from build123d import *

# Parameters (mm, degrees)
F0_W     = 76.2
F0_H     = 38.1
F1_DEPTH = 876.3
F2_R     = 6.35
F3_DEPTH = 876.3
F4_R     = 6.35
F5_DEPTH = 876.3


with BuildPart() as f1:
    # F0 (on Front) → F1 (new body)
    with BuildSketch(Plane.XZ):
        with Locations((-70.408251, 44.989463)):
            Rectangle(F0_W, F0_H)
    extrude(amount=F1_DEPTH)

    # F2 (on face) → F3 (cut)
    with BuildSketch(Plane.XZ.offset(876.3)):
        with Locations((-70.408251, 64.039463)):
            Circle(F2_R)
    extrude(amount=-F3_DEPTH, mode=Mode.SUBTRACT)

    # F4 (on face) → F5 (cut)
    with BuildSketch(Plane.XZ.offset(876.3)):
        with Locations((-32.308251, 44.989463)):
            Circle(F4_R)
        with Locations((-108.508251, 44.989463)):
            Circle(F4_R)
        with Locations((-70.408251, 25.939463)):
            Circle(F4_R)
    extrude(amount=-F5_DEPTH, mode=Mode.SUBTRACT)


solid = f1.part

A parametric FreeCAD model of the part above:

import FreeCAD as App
import Part
import Sketcher

V = App.Vector
Q = App.Units.Quantity

doc = App.newDocument("Part")
body = doc.addObject("PartDesign::Body", "Body")

# Sketch on XZ plane
sketch1 = body.newObject("Sketcher::SketchObject", "Sketch")
sketch1.AttachmentSupport = (doc.getObject("XZ_Plane"), [""])
sketch1.MapMode = "FlatFace"
sketch1.addGeometry(Part.LineSegment(V(-109, 64, 0), V(-109, 26, 0)), False)
sketch1.addGeometry(Part.LineSegment(V(-109, 26, 0), V(-32, 26, 0)), False)
sketch1.addGeometry(Part.LineSegment(V(-32, 26, 0), V(-32, 64, 0)), False)
sketch1.addGeometry(Part.LineSegment(V(-32, 64, 0), V(-109, 64, 0)), False)
sketch1.addConstraint(Sketcher.Constraint("Coincident", 0, 2, 1, 1))
sketch1.addConstraint(Sketcher.Constraint("Coincident", 1, 2, 2, 1))
sketch1.addConstraint(Sketcher.Constraint("Coincident", 2, 2, 3, 1))
sketch1.addConstraint(Sketcher.Constraint("Coincident", 3, 2, 0, 1))
sketch1.addConstraint(Sketcher.Constraint("Vertical", 0))
sketch1.addConstraint(Sketcher.Constraint("Horizontal", 1))
sketch1.addConstraint(Sketcher.Constraint("Vertical", 2))
sketch1.addConstraint(Sketcher.Constraint("Horizontal", 3))
sketch1.addConstraint(Sketcher.Constraint("DistanceX", 1, 1, 1, 2, Q("3 in")))
sketch1.addConstraint(Sketcher.Constraint("DistanceY", 0, 2, 0, 1, Q("1.5 in")))
sketch1.addConstraint(Sketcher.Constraint("DistanceX", 0, 2, -1, 1, 108.508251))
sketch1.addConstraint(Sketcher.Constraint("DistanceY", -1, 1, 0, 2, 25.939463))
pad1 = body.newObject("PartDesign::Pad", "Pad")
pad1.Profile = sketch1
pad1.Length = Q("34.5 in")

# Sketch on XZ plane
sketch2 = body.newObject("Sketcher::SketchObject", "Sketch001")
sketch2.AttachmentSupport = (doc.getObject("XZ_Plane"), [""])
sketch2.MapMode = "FlatFace"
sketch2.AttachmentOffset = App.Placement(V(0, 0, 34.5 * 25.4), App.Rotation())
sketch2.addGeometry(Part.Circle(V(-70, 64, 0), V(0, 0, 1), 6), False)
sketch2.addConstraint(Sketcher.Constraint("Diameter", 0, Q("0.5 in")))
sketch2.addConstraint(Sketcher.Constraint("DistanceX", 0, 3, -1, 1, 70.408251))
sketch2.addConstraint(Sketcher.Constraint("DistanceY", -1, 1, 0, 3, 64.039463))
pocket1 = body.newObject("PartDesign::Pocket", "Pocket")
pocket1.Profile = sketch2
pocket1.Length = Q("34.5 in")

# Sketch on XZ plane
sketch3 = body.newObject("Sketcher::SketchObject", "Sketch002")
sketch3.AttachmentSupport = (doc.getObject("XZ_Plane"), [""])
sketch3.MapMode = "FlatFace"
sketch3.AttachmentOffset = App.Placement(V(0, 0, 34.5 * 25.4), App.Rotation())
sketch3.addGeometry(Part.Circle(V(-32, 45, 0), V(0, 0, 1), 6), False)
sketch3.addGeometry(Part.Circle(V(-109, 45, 0), V(0, 0, 1), 6), False)
sketch3.addGeometry(Part.Circle(V(-70, 26, 0), V(0, 0, 1), 6), False)
sketch3.addConstraint(Sketcher.Constraint("Equal", 0, 1))
sketch3.addConstraint(Sketcher.Constraint("Equal", 1, 2))
sketch3.addConstraint(Sketcher.Constraint("Horizontal", 0, 3, 1, 3))
sketch3.addConstraint(Sketcher.Constraint("Diameter", 0, Q("0.5 in")))
sketch3.addConstraint(Sketcher.Constraint("DistanceX", 1, 3, 0, 3, Q("3 in")))
sketch3.addConstraint(Sketcher.Constraint("DistanceX", 1, 3, 2, 3, Q("1.5 in")))
sketch3.addConstraint(Sketcher.Constraint("DistanceY", 2, 3, 1, 3, Q("0.75 in")))
sketch3.addConstraint(Sketcher.Constraint("DistanceX", 0, 3, -1, 1, 32.308251))
sketch3.addConstraint(Sketcher.Constraint("DistanceY", -1, 1, 0, 3, 44.989463))
pocket2 = body.newObject("PartDesign::Pocket", "Pocket001")
pocket2.Profile = sketch3
pocket2.Length = Q("34.5 in")

doc.recompute()
